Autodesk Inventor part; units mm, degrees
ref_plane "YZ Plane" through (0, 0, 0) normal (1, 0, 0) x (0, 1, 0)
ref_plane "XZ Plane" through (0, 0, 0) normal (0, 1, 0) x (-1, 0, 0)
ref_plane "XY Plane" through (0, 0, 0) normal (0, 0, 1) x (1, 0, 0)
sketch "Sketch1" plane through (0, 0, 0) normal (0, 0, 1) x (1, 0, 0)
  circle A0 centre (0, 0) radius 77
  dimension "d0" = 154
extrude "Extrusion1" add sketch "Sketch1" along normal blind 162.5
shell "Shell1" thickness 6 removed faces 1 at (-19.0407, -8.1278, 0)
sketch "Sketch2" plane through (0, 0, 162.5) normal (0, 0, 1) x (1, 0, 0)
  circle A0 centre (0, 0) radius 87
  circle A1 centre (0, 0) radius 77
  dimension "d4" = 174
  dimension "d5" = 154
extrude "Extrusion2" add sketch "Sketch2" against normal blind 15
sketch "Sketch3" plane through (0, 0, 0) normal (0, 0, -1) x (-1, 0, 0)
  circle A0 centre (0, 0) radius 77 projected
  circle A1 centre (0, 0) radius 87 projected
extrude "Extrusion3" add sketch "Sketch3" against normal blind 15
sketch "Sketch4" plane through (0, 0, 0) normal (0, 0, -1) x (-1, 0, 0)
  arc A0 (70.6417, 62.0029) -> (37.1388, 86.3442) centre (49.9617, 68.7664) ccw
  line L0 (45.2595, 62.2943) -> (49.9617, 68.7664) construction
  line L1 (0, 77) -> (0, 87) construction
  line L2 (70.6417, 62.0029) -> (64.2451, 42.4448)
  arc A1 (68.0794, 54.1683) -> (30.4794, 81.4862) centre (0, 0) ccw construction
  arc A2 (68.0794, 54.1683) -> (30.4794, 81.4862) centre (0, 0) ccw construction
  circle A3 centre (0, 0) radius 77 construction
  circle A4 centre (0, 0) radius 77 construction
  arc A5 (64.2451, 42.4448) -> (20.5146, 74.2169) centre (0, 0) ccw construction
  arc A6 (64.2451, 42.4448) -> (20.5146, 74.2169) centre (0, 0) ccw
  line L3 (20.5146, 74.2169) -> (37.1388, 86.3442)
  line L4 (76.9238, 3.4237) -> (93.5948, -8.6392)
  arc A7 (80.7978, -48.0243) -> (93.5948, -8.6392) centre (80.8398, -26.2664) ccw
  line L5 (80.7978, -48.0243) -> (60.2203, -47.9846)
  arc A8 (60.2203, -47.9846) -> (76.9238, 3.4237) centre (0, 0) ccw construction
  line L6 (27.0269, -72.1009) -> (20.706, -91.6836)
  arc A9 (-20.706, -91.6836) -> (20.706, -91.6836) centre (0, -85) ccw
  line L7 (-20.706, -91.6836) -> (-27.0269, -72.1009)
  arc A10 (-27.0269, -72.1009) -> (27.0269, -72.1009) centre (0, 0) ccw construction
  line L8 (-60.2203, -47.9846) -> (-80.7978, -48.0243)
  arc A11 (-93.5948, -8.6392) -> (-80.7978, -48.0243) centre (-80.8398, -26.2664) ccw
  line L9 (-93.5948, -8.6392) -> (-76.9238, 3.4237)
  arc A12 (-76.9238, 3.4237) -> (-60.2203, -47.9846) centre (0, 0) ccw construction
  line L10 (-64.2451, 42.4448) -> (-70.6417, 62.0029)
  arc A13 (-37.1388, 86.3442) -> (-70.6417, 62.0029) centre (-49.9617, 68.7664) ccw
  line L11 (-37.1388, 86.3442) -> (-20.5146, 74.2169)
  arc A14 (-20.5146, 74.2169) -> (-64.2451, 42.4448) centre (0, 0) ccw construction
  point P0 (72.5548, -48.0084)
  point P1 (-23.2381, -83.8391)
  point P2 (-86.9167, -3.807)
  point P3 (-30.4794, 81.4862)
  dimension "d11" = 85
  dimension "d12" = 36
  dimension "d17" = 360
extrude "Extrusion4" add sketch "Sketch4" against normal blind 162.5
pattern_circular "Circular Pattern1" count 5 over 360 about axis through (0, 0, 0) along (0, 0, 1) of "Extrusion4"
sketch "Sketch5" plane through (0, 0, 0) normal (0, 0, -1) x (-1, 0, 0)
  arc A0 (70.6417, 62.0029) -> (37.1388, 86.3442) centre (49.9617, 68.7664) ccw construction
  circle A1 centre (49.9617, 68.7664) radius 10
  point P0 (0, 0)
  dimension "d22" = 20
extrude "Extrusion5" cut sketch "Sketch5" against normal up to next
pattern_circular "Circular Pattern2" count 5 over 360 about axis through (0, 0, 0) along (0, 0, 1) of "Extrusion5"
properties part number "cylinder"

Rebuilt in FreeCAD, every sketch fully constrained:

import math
import FreeCAD as App
import Part
import Sketcher
Q = App.Units.Quantity


def faces_at(feature, points):
    """Names of the faces that lie closest to the given points."""
    faces = feature.Shape.Faces
    near = lambda p: min(range(len(faces)), key=lambda i: faces[i].distToShape(Part.Vertex(*p))[0])
    return sorted({f"Face{near(p) + 1}" for p in points})

doc = App.newDocument("Part")
body = doc.addObject("PartDesign::Body", "Body")

sketch1 = body.newObject("Sketcher::SketchObject", "Sketch")
sketch1.AttachmentSupport = (doc.getObject("XY_Plane"), [""])
sketch1.MapMode = "FlatFace"
sketch1.addGeometry(Part.Circle(App.Vector(0, 0, 0), App.Vector(0, 0, 1), 77), False)
sketch1.addConstraint(Sketcher.Constraint("Coincident", 0, 3, -1, 1))
sketch1.addConstraint(Sketcher.Constraint("Diameter", 0, Q("154 mm")))
pad1 = body.newObject("PartDesign::Pad", "Pad")
pad1.Profile = sketch1
pad1.Length = 162.5
doc.recompute()

thickness = body.newObject("PartDesign::Thickness", "Thickness")
thickness.Base = (pad1, faces_at(pad1, [(-19.041, -8.128, 0)]))
thickness.Value = 6
thickness.Reversed = True
thickness.Join = "Intersection"

sketch2 = body.newObject("Sketcher::SketchObject", "Sketch001")
sketch2.AttachmentSupport = (doc.getObject("XY_Plane"), [""])
sketch2.MapMode = "FlatFace"
sketch2.AttachmentOffset = App.Placement(App.Vector(0, 0, 162.5), App.Rotation())
sketch2.addGeometry(Part.Circle(App.Vector(0, 0, 0), App.Vector(0, 0, 1), 87), False)
sketch2.addGeometry(Part.Circle(App.Vector(0, 0, 0), App.Vector(0, 0, 1), 77), False)
sketch2.addConstraint(Sketcher.Constraint("Coincident", 0, 3, -1, 1))
sketch2.addConstraint(Sketcher.Constraint("Coincident", 1, 3, -1, 1))
sketch2.addConstraint(Sketcher.Constraint("Diameter", 0, Q("174 mm")))
sketch2.addConstraint(Sketcher.Constraint("Diameter", 1, Q("154 mm")))
pad2 = body.newObject("PartDesign::Pad", "Pad001")
pad2.Profile = sketch2
pad2.Length = 15
pad2.Reversed = True

sketch3 = body.newObject("Sketcher::SketchObject", "Sketch002")
sketch3.AttachmentSupport = (doc.getObject("XY_Plane"), [""])
sketch3.MapMode = "FlatFace"
sketch3.addGeometry(Part.Circle(App.Vector(0, 0, 0), App.Vector(0, 0, 1), 87), False)
sketch3.addGeometry(Part.Circle(App.Vector(0, 0, 0), App.Vector(0, 0, 1), 77), False)
sketch3.addConstraint(Sketcher.Constraint("Coincident", 0, 3, -1, 1))
sketch3.addConstraint(Sketcher.Constraint("Coincident", 1, 3, -1, 1))
sketch3.addConstraint(Sketcher.Constraint("Diameter", 0, Q("174 mm")))
sketch3.addConstraint(Sketcher.Constraint("Diameter", 1, Q("154 mm")))
pad3 = body.newObject("PartDesign::Pad", "Pad002")
pad3.Profile = sketch3
pad3.Length = 15

sketch4 = body.newObject("Sketcher::SketchObject", "Sketch003")
sketch4.AttachmentSupport = (doc.getObject("XY_Plane"), [""])
sketch4.MapMode = "FlatFace"
sketch4.addGeometry(Part.LineSegment(App.Vector(-64.2451, 42.4448, 0), App.Vector(-70.6417, 62.0029, 0)), False)
sketch4.addGeometry(Part.ArcOfCircle(Part.Circle(App.Vector(-49.9617, 68.7664, 0), App.Vector(0, 0, 1), 21.757926), math.radians(53.889473), math.radians(198.110598)), False)
sketch4.addGeometry(Part.LineSegment(App.Vector(-37.1388, 86.3442, 0), App.Vector(-20.5146, 74.2169, 0)), False)
sketch4.addGeometry(Part.ArcOfCircle(Part.Circle(App.Vector(0, 0, 0), App.Vector(0, 0, 1), 77.000041), math.radians(105.451551), math.radians(146.548463)), False)
sketch4.addConstraint(Sketcher.Constraint("Tangent", 0, 2, 1, 2))
sketch4.addConstraint(Sketcher.Constraint("Tangent", 1, 1, 2, 1))
sketch4.addConstraint(Sketcher.Constraint("Coincident", 2, 2, 3, 1))
sketch4.addConstraint(Sketcher.Constraint("Coincident", 3, 2, 0, 1))
sketch4.addConstraint(Sketcher.Constraint("Coincident", 3, 3, -1, 1))
sketch4.addConstraint(Sketcher.Constraint("Equal", 0, 2))
sketch4.addConstraint(Sketcher.Constraint("Radius", 3, Q("77 mm")))
sketch4.addConstraint(Sketcher.Constraint("Radius", 1, Q("21.758 mm")))
sketch4.addConstraint(Sketcher.Constraint("Angle", 0, Q("108.1107 deg")))
sketch4.addConstraint(Sketcher.Constraint("Angle", 2, Q("-36.1106 deg")))
sketch4.addConstraint(Sketcher.Constraint("DistanceY", -1, 1, 0, 2, Q("62.003 mm")))
pad4 = body.newObject("PartDesign::Pad", "Pad003")
pad4.Profile = sketch4
pad4.Length = 162.5
doc.recompute()

polarpattern = body.newObject("PartDesign::PolarPattern", "PolarPattern")
polarpattern.Originals = [pad4]
polarpattern.Axis = (doc.getObject("Z_Axis"), [""])
polarpattern.Angle = 360
polarpattern.Occurrences = 5
body.Tip = polarpattern

sketch5 = body.newObject("Sketcher::SketchObject", "Sketch004")
sketch5.AttachmentSupport = (doc.getObject("XY_Plane"), [""])
sketch5.MapMode = "FlatFace"
sketch5.addGeometry(Part.Circle(App.Vector(-49.9617, 68.7664, 0), App.Vector(0, 0, 1), 10), False)
sketch5.addConstraint(Sketcher.Constraint("Diameter", 0, Q("20 mm")))
sketch5.addConstraint(Sketcher.Constraint("DistanceX", 0, 3, -1, 1, Q("49.9617 mm")))
sketch5.addConstraint(Sketcher.Constraint("DistanceY", -1, 1, 0, 3, Q("68.7664 mm")))
pocket1 = body.newObject("PartDesign::Pocket", "Pocket")
pocket1.Profile = sketch5
pocket1.Type = "UpToFirst"
pocket1.Reversed = True
doc.recompute()

polarpattern2 = body.newObject("PartDesign::PolarPattern", "PolarPattern001")
polarpattern2.Originals = [pocket1]
polarpattern2.Axis = (doc.getObject("Z_Axis"), [""])
polarpattern2.Angle = 360
polarpattern2.Occurrences = 5
body.Tip = polarpattern2

doc.recompute()
